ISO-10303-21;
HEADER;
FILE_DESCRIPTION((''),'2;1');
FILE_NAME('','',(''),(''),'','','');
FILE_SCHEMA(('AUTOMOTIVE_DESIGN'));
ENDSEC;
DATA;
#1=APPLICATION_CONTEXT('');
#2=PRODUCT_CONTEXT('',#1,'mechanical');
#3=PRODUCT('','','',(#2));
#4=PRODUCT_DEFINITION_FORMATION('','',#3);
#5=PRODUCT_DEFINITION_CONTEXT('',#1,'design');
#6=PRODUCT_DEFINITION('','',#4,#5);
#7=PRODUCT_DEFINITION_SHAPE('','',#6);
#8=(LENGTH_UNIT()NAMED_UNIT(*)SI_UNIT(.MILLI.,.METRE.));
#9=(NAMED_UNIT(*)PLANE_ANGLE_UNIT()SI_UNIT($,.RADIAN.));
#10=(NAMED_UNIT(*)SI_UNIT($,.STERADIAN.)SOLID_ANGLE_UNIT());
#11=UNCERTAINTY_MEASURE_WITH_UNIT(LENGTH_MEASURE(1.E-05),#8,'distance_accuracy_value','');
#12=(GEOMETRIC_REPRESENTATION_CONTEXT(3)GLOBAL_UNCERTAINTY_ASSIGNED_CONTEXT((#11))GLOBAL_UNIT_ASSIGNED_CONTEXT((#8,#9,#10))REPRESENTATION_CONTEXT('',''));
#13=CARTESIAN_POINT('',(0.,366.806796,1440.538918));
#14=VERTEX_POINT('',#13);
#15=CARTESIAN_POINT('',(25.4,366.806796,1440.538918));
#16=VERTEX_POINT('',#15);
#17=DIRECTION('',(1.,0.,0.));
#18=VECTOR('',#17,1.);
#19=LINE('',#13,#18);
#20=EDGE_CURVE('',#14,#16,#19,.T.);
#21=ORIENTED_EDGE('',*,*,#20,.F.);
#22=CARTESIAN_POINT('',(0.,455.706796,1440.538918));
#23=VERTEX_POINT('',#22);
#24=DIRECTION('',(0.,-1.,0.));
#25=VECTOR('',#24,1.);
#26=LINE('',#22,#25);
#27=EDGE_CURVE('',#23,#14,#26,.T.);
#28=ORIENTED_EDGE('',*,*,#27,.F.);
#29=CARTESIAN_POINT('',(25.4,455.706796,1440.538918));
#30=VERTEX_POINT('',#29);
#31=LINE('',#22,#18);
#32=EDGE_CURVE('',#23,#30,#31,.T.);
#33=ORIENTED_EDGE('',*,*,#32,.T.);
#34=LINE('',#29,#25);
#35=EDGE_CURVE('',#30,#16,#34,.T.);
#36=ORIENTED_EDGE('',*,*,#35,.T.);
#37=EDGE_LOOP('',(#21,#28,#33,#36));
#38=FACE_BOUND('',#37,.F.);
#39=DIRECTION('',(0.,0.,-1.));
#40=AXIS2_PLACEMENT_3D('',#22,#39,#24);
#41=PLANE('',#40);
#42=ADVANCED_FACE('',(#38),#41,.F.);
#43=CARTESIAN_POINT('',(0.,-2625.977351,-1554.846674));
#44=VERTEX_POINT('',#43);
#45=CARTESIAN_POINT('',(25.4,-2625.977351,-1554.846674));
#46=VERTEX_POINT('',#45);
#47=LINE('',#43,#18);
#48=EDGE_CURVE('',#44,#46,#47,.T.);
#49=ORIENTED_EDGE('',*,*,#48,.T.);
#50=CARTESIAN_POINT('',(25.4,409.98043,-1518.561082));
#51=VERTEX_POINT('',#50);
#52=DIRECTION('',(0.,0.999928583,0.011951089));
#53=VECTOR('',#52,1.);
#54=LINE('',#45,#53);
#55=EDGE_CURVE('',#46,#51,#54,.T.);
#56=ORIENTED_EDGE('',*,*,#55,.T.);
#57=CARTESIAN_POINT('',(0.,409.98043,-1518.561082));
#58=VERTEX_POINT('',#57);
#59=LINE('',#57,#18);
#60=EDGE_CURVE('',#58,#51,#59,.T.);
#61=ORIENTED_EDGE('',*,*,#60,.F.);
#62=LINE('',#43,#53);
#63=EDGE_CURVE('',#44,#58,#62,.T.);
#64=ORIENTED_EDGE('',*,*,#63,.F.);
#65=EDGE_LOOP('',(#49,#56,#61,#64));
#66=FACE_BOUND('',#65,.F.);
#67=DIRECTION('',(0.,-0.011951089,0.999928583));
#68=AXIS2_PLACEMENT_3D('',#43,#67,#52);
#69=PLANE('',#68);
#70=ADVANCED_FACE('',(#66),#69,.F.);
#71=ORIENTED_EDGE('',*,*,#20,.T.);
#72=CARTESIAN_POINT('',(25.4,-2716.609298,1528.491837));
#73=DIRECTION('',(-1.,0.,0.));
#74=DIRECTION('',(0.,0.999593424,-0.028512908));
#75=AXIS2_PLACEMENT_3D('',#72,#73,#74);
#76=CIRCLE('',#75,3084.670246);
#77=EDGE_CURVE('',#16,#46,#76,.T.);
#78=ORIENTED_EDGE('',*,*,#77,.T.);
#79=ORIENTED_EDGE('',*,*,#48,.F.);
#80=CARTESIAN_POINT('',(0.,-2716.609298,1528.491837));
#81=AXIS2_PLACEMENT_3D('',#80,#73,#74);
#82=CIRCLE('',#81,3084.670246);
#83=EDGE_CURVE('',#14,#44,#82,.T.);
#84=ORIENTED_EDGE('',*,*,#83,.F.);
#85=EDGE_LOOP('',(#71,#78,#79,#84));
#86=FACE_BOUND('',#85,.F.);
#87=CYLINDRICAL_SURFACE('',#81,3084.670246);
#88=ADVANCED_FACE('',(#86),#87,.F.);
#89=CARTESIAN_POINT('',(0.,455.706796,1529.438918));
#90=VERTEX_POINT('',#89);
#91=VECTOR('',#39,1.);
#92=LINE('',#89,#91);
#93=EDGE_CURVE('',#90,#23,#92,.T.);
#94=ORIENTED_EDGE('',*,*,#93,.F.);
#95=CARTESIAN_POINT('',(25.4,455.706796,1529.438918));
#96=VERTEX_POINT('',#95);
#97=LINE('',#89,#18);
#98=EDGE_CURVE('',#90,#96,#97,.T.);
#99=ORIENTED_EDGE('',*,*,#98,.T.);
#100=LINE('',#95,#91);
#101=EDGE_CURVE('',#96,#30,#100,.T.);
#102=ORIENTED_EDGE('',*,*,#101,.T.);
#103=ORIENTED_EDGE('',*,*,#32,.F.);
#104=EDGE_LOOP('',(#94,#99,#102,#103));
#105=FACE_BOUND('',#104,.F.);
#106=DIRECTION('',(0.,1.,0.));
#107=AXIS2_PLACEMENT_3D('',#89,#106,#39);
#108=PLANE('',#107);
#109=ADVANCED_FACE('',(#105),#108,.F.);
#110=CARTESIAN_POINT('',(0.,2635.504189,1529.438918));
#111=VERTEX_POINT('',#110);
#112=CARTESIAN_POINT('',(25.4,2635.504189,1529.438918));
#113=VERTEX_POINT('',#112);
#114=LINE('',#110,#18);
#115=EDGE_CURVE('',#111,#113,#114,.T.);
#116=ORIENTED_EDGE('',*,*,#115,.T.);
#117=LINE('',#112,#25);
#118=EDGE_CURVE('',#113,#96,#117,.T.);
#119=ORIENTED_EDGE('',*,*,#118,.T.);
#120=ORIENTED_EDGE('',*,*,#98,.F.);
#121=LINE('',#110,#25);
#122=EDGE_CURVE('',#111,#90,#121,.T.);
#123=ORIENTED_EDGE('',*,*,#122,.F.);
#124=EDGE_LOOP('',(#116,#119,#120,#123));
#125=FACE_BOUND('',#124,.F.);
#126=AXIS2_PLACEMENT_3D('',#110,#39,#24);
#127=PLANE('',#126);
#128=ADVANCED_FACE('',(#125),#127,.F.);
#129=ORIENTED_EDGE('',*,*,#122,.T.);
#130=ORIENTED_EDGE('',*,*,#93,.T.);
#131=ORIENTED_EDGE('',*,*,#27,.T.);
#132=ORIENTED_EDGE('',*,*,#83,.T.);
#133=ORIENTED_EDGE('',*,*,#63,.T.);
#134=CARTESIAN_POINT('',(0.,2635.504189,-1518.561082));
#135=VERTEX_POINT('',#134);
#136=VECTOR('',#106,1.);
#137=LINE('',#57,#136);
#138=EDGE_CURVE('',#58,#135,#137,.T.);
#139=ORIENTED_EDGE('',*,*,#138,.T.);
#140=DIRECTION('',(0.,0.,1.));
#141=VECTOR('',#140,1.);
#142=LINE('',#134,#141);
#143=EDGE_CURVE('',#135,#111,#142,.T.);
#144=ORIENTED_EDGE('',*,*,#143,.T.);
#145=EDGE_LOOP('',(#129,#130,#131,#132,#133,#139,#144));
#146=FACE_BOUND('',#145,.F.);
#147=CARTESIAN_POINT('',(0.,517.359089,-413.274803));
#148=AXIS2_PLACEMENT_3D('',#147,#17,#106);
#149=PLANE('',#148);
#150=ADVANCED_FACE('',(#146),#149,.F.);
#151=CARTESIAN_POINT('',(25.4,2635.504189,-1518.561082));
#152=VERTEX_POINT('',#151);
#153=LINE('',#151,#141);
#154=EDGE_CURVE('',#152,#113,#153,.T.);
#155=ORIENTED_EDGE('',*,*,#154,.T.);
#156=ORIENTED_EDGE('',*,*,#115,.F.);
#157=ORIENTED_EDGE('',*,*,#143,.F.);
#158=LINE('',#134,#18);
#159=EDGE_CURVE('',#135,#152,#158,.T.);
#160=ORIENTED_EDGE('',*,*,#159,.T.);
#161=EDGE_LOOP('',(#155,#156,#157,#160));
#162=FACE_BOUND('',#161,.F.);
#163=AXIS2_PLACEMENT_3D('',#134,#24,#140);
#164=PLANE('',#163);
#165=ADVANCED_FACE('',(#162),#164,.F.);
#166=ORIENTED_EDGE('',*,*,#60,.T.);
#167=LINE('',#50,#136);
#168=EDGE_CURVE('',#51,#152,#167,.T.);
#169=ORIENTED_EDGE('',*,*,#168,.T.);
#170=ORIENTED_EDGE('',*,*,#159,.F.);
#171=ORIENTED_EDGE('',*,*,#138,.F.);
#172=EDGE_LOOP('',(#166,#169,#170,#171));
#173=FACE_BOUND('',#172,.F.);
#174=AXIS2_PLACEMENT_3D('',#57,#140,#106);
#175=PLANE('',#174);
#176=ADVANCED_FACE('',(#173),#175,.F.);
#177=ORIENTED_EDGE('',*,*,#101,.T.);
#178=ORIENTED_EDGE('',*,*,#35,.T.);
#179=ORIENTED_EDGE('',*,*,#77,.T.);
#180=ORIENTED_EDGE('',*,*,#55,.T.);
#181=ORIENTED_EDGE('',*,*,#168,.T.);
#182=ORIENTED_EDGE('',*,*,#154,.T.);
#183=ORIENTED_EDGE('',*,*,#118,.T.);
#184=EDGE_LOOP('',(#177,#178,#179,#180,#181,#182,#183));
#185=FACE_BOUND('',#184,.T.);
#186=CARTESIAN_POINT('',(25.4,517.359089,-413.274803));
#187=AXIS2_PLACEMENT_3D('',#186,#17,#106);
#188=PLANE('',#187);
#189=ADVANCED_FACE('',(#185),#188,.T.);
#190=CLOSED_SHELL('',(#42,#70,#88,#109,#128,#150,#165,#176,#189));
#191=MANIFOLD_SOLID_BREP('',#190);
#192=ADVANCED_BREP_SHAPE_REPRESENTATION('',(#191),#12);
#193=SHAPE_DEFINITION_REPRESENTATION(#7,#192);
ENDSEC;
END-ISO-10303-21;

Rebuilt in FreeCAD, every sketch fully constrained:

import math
import FreeCAD as App
import Part
import Sketcher
from FreeCAD import Vector
Q = App.Units.Quantity

doc = App.newDocument("Part")
params = doc.addObject("Spreadsheet::Sheet", "Params")
for row, (alias, value) in enumerate([
    ("sketch1_height", "120 in"),
    ("sketch1_width", "3.5 in"),
    ("pad1_length", "1 in"),
], start=1):
    params.set(f"A{row}", alias)
    params.set(f"B{row}", "=" + value)
    params.setAlias(f"B{row}", alias)

body = doc.addObject("PartDesign::Body", "Body")

sketch1 = body.newObject("Sketcher::SketchObject", "Sketch")
sketch1.AttachmentSupport = (doc.getObject("YZ_Plane"), [""])
sketch1.MapMode = "FlatFace"
sketch1.addGeometry(Part.LineSegment(Vector(2636, 1529, 0), Vector(456, 1529, 0)), False)
sketch1.addGeometry(Part.LineSegment(Vector(456, 1529, 0), Vector(456, 1441, 0)), False)
sketch1.addGeometry(Part.LineSegment(Vector(456, 1441, 0), Vector(367, 1441, 0)), False)
sketch1.addGeometry(Part.ArcOfCircle(Part.Circle(Vector(-2717, 1528, 0), Vector(0, 0, 1), 3085), math.radians(-88), math.radians(-2)), False)
sketch1.addGeometry(Part.LineSegment(Vector(-2626, -1555, 0), Vector(410, -1519, 0)), False)
sketch1.addGeometry(Part.LineSegment(Vector(410, -1519, 0), Vector(2636, -1519, 0)), False)
sketch1.addGeometry(Part.LineSegment(Vector(2636, -1519, 0), Vector(2636, 1529, 0)), False)
sketch1.addConstraint(Sketcher.Constraint("Coincident", 0, 2, 1, 1))
sketch1.addConstraint(Sketcher.Constraint("Coincident", 1, 2, 2, 1))
sketch1.addConstraint(Sketcher.Constraint("Coincident", 2, 2, 3, 2))
sketch1.addConstraint(Sketcher.Constraint("Coincident", 3, 1, 4, 1))
sketch1.addConstraint(Sketcher.Constraint("Coincident", 4, 2, 5, 1))
sketch1.addConstraint(Sketcher.Constraint("Coincident", 5, 2, 6, 1))
sketch1.addConstraint(Sketcher.Constraint("Coincident", 6, 2, 0, 1))
sketch1.addConstraint(Sketcher.Constraint("Horizontal", 0))
sketch1.addConstraint(Sketcher.Constraint("Vertical", 1))
sketch1.addConstraint(Sketcher.Constraint("Horizontal", 2))
sketch1.addConstraint(Sketcher.Constraint("Horizontal", 5))
sketch1.addConstraint(Sketcher.Constraint("Vertical", 6))
sketch1.addConstraint(Sketcher.Constraint("Equal", 2, 1))
sketch1.addConstraint(Sketcher.Constraint("DistanceY", 6, 1, 6, 2, Q("120 in")))
sketch1.addConstraint(Sketcher.Constraint("DistanceX", 2, 2, 2, 1, Q("3.5 in")))
sketch1.addConstraint(Sketcher.Constraint("Radius", 3, Q("3084.670246 mm")))
sketch1.addConstraint(Sketcher.Constraint("DistanceX", 5, 1, 5, 2, Q("2225.523759 mm")))
sketch1.addConstraint(Sketcher.Constraint("DistanceX", 3, 3, -1, 1, Q("2716.609298 mm")))
sketch1.addConstraint(Sketcher.Constraint("DistanceX", 0, 2, 0, 1, Q("2179.797393 mm")))
sketch1.addConstraint(Sketcher.Constraint("DistanceY", -1, 1, 0, 2, Q("1529.438918 mm")))
sketch1.addConstraint(Sketcher.Constraint("DistanceX", -1, 1, 4, 2, Q("409.98043 mm")))
sketch1.addConstraint(Sketcher.Constraint("Distance", 4, Q("3036.174615 mm")))
sketch1.setExpression("Constraints[13]", "Params.sketch1_height")
sketch1.setExpression("Constraints[14]", "Params.sketch1_width")
pad1 = body.newObject("PartDesign::Pad", "Pad")
pad1.Profile = sketch1
pad1.setExpression("Length", "Params.pad1_length")

doc.recompute()
